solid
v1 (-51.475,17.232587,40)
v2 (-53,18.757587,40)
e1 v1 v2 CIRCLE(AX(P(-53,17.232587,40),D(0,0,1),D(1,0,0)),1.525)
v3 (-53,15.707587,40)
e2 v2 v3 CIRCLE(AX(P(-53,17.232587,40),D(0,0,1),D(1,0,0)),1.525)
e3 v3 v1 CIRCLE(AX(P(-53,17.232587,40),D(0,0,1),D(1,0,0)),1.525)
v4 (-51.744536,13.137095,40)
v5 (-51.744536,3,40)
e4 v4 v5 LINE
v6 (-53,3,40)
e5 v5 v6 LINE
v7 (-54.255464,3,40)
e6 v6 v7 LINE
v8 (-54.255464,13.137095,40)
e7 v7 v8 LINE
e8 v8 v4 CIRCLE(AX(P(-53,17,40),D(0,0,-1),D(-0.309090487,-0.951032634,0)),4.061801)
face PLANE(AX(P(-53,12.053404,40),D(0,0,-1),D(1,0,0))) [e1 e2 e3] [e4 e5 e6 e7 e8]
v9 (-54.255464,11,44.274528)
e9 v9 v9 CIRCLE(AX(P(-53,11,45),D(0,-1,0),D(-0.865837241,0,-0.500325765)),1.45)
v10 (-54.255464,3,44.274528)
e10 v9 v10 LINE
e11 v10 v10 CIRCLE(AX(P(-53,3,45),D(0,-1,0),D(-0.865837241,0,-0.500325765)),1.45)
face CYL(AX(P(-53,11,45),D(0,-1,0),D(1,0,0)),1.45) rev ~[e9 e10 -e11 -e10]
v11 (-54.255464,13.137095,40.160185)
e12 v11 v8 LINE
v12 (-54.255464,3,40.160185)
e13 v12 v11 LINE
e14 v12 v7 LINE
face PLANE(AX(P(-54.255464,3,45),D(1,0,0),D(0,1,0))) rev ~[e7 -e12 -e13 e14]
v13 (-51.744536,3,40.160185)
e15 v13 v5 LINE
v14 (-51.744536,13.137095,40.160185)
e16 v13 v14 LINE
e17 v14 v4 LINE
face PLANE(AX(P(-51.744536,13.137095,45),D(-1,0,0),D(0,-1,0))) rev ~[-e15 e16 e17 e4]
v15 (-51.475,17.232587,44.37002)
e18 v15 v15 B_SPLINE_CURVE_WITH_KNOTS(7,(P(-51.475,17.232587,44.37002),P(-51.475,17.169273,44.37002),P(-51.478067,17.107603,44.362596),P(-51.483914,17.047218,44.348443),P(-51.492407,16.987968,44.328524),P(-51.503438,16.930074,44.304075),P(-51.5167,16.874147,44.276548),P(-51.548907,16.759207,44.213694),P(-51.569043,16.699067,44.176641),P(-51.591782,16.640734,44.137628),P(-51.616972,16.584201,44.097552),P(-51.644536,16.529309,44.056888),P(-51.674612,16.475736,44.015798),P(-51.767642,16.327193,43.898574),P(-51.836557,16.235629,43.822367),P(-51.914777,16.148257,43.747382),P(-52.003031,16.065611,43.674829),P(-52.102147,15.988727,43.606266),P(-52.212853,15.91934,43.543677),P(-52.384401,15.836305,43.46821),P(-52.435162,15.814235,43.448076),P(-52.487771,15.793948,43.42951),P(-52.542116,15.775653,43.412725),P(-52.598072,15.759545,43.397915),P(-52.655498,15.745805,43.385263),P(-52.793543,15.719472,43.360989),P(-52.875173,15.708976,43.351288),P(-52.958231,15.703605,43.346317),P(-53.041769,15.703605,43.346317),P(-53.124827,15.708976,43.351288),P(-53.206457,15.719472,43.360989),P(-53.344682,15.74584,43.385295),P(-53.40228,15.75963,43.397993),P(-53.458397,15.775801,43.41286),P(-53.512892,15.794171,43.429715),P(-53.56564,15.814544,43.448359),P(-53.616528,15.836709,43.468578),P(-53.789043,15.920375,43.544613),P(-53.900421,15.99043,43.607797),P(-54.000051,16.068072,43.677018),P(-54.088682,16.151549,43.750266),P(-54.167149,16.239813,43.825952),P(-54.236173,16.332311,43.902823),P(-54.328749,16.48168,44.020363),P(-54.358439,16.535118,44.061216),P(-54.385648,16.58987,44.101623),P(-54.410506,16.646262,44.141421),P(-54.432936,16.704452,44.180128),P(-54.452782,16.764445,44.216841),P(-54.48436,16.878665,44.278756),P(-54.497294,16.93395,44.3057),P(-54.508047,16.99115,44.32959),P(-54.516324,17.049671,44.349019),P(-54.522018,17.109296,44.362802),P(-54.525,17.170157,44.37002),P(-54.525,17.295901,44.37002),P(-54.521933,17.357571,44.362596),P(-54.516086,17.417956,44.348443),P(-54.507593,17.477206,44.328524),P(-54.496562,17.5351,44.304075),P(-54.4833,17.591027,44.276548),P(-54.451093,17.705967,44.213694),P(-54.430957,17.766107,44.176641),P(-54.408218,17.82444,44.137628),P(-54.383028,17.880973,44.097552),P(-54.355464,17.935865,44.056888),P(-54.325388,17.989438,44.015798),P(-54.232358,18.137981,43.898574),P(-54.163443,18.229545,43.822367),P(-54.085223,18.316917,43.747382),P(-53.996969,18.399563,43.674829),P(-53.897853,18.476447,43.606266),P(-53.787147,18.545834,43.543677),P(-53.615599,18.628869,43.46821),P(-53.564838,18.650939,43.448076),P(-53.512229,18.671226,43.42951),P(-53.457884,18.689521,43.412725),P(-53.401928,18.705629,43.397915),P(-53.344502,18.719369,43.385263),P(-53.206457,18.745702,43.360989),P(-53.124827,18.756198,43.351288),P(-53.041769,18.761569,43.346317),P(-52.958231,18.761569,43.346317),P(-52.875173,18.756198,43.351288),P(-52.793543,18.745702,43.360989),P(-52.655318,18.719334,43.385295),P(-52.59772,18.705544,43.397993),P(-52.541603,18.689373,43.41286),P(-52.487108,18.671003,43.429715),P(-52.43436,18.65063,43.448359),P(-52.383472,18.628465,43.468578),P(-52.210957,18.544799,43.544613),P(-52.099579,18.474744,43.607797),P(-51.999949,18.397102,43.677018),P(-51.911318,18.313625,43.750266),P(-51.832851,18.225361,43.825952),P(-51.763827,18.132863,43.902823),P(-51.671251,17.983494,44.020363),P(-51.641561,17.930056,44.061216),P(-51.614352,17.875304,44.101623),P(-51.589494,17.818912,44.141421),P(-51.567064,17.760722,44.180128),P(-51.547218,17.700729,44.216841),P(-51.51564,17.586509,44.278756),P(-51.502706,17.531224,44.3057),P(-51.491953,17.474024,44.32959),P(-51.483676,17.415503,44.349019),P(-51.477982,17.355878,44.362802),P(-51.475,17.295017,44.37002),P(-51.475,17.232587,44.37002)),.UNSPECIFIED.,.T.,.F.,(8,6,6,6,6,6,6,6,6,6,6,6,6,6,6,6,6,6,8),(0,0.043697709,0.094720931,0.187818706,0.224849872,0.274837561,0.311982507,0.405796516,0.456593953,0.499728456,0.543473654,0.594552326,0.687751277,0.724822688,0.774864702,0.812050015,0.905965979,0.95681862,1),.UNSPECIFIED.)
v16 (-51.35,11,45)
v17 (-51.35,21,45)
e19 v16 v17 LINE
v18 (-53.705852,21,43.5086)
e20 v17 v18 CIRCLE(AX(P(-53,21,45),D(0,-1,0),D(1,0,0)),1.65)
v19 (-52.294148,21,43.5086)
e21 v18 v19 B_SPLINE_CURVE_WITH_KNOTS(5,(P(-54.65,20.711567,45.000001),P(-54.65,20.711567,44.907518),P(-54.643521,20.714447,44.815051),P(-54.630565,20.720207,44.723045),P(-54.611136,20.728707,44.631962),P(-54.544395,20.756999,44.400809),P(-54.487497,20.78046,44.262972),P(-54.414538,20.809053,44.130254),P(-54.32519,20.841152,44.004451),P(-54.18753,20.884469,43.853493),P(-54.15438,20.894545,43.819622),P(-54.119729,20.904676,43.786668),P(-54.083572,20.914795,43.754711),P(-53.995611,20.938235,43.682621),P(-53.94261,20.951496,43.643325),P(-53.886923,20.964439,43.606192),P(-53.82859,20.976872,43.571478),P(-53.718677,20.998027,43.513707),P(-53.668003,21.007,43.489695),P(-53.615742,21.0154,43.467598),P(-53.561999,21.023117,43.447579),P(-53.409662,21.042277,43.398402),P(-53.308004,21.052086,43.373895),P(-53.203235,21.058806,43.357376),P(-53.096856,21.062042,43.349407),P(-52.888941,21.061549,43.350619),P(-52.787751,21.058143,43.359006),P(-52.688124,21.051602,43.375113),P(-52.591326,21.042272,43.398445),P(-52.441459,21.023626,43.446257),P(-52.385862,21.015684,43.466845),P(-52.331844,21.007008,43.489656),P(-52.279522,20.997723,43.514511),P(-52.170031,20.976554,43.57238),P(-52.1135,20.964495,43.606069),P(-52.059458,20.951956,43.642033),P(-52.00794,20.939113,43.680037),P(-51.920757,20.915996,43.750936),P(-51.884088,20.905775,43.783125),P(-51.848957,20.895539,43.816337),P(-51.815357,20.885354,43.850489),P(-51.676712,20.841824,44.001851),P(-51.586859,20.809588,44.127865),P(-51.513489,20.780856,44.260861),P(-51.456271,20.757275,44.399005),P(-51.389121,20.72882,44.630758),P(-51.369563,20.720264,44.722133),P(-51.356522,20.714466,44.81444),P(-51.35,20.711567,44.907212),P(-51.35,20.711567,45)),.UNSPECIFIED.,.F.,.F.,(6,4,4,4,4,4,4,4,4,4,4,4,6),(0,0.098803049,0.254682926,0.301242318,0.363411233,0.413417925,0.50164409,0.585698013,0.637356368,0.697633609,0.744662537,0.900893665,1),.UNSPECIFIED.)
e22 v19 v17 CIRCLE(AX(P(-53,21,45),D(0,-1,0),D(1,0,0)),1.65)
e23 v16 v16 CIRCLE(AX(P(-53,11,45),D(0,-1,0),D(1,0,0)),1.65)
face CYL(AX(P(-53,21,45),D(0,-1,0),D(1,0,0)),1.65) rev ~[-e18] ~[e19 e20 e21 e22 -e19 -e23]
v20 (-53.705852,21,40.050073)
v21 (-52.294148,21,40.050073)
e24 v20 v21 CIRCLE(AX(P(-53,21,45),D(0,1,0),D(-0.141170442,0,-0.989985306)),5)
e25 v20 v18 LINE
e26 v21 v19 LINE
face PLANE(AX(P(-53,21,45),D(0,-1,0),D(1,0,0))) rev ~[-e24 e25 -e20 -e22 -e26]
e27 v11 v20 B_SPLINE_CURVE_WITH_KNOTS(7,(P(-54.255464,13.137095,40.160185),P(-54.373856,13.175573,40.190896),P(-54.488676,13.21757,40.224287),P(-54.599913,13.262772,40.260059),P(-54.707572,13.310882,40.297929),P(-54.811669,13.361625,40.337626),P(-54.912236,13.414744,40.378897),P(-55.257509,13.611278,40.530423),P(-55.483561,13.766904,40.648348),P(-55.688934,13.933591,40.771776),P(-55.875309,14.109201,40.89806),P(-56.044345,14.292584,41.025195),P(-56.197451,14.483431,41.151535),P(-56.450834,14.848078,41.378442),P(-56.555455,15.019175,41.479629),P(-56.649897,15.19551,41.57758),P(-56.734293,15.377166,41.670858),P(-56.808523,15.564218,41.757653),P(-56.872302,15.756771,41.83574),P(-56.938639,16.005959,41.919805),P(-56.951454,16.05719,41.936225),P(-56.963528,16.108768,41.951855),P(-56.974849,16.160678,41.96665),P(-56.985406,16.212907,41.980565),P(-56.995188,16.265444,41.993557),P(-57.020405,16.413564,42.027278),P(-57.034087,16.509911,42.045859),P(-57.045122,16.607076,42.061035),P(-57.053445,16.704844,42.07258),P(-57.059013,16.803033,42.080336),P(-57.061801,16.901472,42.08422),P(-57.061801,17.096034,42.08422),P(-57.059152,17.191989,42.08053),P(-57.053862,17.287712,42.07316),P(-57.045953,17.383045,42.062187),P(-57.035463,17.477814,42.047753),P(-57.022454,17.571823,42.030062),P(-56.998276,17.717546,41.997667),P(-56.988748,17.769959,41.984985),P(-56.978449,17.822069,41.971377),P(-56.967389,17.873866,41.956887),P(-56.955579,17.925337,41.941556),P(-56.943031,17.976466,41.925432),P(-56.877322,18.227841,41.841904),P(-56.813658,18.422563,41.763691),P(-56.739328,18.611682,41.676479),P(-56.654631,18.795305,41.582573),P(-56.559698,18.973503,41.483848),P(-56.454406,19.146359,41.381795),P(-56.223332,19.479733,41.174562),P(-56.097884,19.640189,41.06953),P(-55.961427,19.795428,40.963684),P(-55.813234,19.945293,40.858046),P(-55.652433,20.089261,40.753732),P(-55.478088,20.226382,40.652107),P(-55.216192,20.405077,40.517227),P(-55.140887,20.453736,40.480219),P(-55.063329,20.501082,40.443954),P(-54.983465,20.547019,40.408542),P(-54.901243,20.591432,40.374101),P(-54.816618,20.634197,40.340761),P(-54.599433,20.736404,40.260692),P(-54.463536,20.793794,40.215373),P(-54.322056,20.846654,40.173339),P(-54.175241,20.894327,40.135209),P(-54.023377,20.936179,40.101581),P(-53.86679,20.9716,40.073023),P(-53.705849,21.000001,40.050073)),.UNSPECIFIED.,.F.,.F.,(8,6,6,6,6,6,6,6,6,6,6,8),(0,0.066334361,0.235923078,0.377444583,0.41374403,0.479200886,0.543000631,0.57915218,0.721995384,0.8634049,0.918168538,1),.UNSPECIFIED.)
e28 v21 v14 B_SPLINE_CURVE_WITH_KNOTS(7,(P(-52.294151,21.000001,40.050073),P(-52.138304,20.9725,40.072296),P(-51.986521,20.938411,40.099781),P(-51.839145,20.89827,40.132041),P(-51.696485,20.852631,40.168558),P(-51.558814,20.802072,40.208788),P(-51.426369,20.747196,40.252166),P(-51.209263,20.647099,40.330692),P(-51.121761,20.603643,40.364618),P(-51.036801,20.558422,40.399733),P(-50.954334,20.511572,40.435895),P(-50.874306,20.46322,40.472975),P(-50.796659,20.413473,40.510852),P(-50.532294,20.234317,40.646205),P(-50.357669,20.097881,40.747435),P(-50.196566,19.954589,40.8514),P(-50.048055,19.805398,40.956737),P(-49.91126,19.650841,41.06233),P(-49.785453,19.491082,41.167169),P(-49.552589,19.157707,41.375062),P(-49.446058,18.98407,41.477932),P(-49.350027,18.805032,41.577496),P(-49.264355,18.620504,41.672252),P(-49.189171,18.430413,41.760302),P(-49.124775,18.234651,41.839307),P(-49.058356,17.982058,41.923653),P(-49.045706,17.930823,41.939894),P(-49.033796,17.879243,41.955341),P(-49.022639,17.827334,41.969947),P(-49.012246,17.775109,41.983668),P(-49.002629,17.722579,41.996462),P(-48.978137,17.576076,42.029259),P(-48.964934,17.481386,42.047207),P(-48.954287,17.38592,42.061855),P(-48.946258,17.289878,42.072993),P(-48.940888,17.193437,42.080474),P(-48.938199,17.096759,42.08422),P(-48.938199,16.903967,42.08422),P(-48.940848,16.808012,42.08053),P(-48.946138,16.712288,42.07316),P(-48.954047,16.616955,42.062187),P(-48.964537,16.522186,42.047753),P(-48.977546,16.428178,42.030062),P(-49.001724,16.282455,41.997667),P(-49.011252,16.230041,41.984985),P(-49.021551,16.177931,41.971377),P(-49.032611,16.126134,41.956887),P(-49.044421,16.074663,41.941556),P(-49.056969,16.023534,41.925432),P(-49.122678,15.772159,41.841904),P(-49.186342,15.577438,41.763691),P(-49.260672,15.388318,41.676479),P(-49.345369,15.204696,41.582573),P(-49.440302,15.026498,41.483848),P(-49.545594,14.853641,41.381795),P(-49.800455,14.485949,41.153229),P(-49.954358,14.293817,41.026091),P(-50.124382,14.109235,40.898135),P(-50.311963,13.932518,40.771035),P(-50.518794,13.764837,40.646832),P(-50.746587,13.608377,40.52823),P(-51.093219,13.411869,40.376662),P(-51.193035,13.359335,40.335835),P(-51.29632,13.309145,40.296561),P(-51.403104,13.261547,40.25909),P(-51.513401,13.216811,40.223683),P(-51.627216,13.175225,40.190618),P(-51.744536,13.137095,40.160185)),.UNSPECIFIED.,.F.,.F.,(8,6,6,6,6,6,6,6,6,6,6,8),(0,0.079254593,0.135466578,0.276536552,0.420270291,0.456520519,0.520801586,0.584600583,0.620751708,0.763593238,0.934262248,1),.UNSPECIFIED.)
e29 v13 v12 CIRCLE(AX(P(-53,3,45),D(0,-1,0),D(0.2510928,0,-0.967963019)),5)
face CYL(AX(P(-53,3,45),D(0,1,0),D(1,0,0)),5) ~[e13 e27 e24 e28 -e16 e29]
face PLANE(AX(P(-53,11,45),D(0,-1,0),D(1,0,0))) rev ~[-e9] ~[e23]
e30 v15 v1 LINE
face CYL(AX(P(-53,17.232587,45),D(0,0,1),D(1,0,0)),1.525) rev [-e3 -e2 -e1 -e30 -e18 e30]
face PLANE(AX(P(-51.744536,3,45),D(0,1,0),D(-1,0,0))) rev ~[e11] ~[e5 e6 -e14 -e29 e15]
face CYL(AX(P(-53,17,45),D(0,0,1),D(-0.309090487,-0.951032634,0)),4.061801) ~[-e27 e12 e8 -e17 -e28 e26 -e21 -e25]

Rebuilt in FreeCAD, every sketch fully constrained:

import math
import FreeCAD as App
import Part
import Sketcher
Q = App.Units.Quantity


def add_polygon(sketch, points):
    """Adds a closed chain of lines whose ends are joined by coincident constraints."""
    first, n = sketch.GeometryCount, len(points)
    for a, b in zip(points, points[1:] + points[:1]):
        sketch.addGeometry(Part.LineSegment(App.Vector(*a, 0), App.Vector(*b, 0)), False)
    for i in range(n):
        sketch.addConstraint(Sketcher.Constraint("Coincident", first + i, 2, first + (i + 1) % n, 1))

doc = App.newDocument("Part")
body = doc.addObject("PartDesign::Body", "Body")

# Sketch on XZ plane
sketch1 = body.newObject("Sketcher::SketchObject", "Sketch")
sketch1.AttachmentSupport = (doc.getObject("XZ_Plane"), [""])
sketch1.MapMode = "FlatFace"
add_polygon(sketch1, [(1.65, -8), (1.65, -18), (5, -18), (5, 0), (1.45, 0), (1.45, -8)])  # lines 0-5
sketch1.addConstraint(Sketcher.Constraint("Vertical", 0))
sketch1.addConstraint(Sketcher.Constraint("Horizontal", 1))
sketch1.addConstraint(Sketcher.Constraint("Vertical", 2))
sketch1.addConstraint(Sketcher.Constraint("Horizontal", 3))
sketch1.addConstraint(Sketcher.Constraint("Vertical", 4))
sketch1.addConstraint(Sketcher.Constraint("Horizontal", 5))
sketch1.addConstraint(Sketcher.Constraint("PointOnObject", 2, 2, -1))
sketch1.addConstraint(Sketcher.Constraint("DistanceY", 0, 2, 0, 1, Q("10 mm")))
sketch1.addConstraint(Sketcher.Constraint("DistanceY", 2, 1, 2, 2, Q("18 mm")))
sketch1.addConstraint(Sketcher.Constraint("DistanceX", 5, 1, 5, 2, Q("0.2 mm")))
sketch1.addConstraint(Sketcher.Constraint("DistanceX", -1, 1, 1, 2, Q("5 mm")))
sketch1.addConstraint(Sketcher.Constraint("DistanceX", 1, 1, 1, 2, Q("3.35 mm")))
revolution = body.newObject("PartDesign::Revolution", "Revolution")
revolution.Profile = sketch1
revolution.ReferenceAxis = (sketch1, ["V_Axis"])
revolution.Angle = 360

# Sketch on XZ plane
sketch2 = body.newObject("Sketcher::SketchObject", "Sketch001")
sketch2.AttachmentSupport = (doc.getObject("XZ_Plane"), [""])
sketch2.MapMode = "FlatFace"
sketch2.addGeometry(Part.ArcOfCircle(Part.Circle(App.Vector(0, -14, 0), App.Vector(0, 0, 1), 4.1), math.radians(108), math.radians(432)), False)
sketch2.addGeometry(Part.LineSegment(App.Vector(1.3, -10.1, 0), App.Vector(1.3, 0, 0)), False)
sketch2.addGeometry(Part.LineSegment(App.Vector(1.3, 0, 0), App.Vector(-1.3, 0, 0)), False)
sketch2.addGeometry(Part.LineSegment(App.Vector(-1.3, 0, 0), App.Vector(-1.3, -10.1, 0)), False)
sketch2.addConstraint(Sketcher.Constraint("Coincident", 0, 2, 1, 1))
sketch2.addConstraint(Sketcher.Constraint("Coincident", 1, 2, 2, 1))
sketch2.addConstraint(Sketcher.Constraint("Coincident", 2, 2, 3, 1))
sketch2.addConstraint(Sketcher.Constraint("Coincident", 3, 2, 0, 1))
sketch2.addConstraint(Sketcher.Constraint("Vertical", 1))
sketch2.addConstraint(Sketcher.Constraint("Horizontal", 2))
sketch2.addConstraint(Sketcher.Constraint("Vertical", 3))
sketch2.addConstraint(Sketcher.Constraint("Symmetric", 1, 2, 2, 2, -1, 1))
sketch2.addConstraint(Sketcher.Constraint("PointOnObject", 0, 3, -2))
sketch2.addConstraint(Sketcher.Constraint("DistanceY", 0, 3, -1, 1, Q("14 mm")))
sketch2.addConstraint(Sketcher.Constraint("Radius", 0, Q("4.061801 mm")))
sketch2.addConstraint(Sketcher.Constraint("DistanceX", 2, 2, 2, 1, Q("2.510928 mm")))
pad1 = body.newObject("PartDesign::Pad", "Pad")
pad1.Profile = sketch2
pad1.Length = 5

# Sketch on XZ plane
sketch3 = body.newObject("Sketcher::SketchObject", "Sketch002")
sketch3.AttachmentSupport = (doc.getObject("XZ_Plane"), [""])
sketch3.MapMode = "FlatFace"
sketch3.addGeometry(Part.Circle(App.Vector(0, -14.2, 0), App.Vector(0, 0, 1), 1.5), False)
sketch3.addConstraint(Sketcher.Constraint("PointOnObject", 0, 3, -2))
sketch3.addConstraint(Sketcher.Constraint("Diameter", 0, Q("3.05 mm")))
sketch3.addConstraint(Sketcher.Constraint("DistanceY", 0, 3, -1, 1, Q("14.232587 mm")))
pocket1 = body.newObject("PartDesign::Pocket", "Pocket")
pocket1.Profile = sketch3
pocket1.Type = "ThroughAll"
pocket1.Reversed = True

# Sketch on XY plane
sketch4 = body.newObject("Sketcher::SketchObject", "Sketch003")
sketch4.AttachmentSupport = (doc.getObject("XY_Plane"), [""])
sketch4.MapMode = "FlatFace"
sketch4.AttachmentOffset = App.Placement(App.Vector(0, 0, -8), App.Rotation())
sketch4.addGeometry(Part.Circle(App.Vector(0, 0, 0), App.Vector(0, 0, 1), 1.6), False)
sketch4.addConstraint(Sketcher.Constraint("Coincident", 0, 3, -1, 1))
sketch4.addConstraint(Sketcher.Constraint("Diameter", 0, Q("3.3 mm")))
pocket2 = body.newObject("PartDesign::Pocket", "Pocket001")
pocket2.Profile = sketch4
pocket2.Type = "ThroughAll"

# Sketch on XY plane
sketch5 = body.newObject("Sketcher::SketchObject", "Sketch004")
sketch5.AttachmentSupport = (doc.getObject("XY_Plane"), [""])
sketch5.MapMode = "FlatFace"
sketch5.addGeometry(Part.Circle(App.Vector(0, 0, 0), App.Vector(0, 0, 1), 1.4), False)
sketch5.addConstraint(Sketcher.Constraint("Coincident", 0, 3, -1, 1))
sketch5.addConstraint(Sketcher.Constraint("Diameter", 0, Q("2.9 mm")))
pocket3 = body.newObject("PartDesign::Pocket", "Pocket002")
pocket3.Profile = sketch5
pocket3.Length = 8
body2 = doc.addObject("PartDesign::Body", "Body001")
doc.recompute()

body.Placement = App.Placement(App.Vector(-53, 3, 45), App.Rotation(App.Vector(1, 0, 0), 90))
boolean = body2.newObject("PartDesign::Boolean", "Boolean")
boolean.Type = "Fuse"
boolean.addObjects([body])

doc.recompute()
